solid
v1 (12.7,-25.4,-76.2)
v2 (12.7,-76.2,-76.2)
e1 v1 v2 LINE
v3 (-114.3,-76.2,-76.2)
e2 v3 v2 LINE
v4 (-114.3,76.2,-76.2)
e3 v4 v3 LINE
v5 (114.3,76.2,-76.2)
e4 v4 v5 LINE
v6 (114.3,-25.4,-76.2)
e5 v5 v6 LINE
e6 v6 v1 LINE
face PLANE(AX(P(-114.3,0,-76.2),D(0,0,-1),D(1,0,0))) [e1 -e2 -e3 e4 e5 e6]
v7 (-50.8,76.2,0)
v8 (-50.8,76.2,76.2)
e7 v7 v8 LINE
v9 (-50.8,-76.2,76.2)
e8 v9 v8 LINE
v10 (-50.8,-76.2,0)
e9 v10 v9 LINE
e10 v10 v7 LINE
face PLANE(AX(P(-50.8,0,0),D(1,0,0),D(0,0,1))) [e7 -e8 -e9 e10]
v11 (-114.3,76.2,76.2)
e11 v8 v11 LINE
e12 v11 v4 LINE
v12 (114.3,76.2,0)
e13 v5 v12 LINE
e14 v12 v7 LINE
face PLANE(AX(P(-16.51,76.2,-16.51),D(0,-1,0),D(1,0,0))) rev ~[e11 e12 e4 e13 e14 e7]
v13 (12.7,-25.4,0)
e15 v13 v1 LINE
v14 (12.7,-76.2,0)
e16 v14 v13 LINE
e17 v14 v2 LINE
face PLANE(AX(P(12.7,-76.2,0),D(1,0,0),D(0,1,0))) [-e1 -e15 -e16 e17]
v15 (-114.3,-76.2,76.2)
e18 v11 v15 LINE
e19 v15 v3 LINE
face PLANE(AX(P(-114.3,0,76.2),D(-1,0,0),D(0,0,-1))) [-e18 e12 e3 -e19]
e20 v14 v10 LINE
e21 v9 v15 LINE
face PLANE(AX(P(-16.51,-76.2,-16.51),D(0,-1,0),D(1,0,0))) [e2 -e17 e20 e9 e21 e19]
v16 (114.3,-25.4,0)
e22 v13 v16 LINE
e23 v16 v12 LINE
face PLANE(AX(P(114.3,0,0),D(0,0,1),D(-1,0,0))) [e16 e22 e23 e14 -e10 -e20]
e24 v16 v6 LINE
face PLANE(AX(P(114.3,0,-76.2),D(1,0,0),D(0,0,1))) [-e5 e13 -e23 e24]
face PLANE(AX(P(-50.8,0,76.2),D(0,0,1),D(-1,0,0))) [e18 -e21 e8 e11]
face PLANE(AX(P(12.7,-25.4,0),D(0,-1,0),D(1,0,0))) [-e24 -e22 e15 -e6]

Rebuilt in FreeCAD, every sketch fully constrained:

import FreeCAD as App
import Part
import Sketcher

V = App.Vector
Q = App.Units.Quantity

doc = App.newDocument("Part")
body = doc.addObject("PartDesign::Body", "Body")

# Sketch on XZ plane
sketch1 = body.newObject("Sketcher::SketchObject", "Sketch")
sketch1.AttachmentSupport = (doc.getObject("XZ_Plane"), [""])
sketch1.MapMode = "FlatFace"
sketch1.addGeometry([
    Part.LineSegment(V(-51, 76, 0), V(-114, 76, 0)),  # 0
    Part.LineSegment(V(-114, 76, 0), V(-114, -76, 0)),  # 1
    Part.LineSegment(V(-114, -76, 0), V(114, -76, 0)),  # 2
    Part.LineSegment(V(114, -76, 0), V(114, 0, 0)),  # 3
    Part.LineSegment(V(114, 0, 0), V(-51, 0, 0)),  # 4
    Part.LineSegment(V(-51, 0, 0), V(-51, 76, 0)),  # 5
], False)
sketch1.addConstraint([
    Sketcher.Constraint("Coincident", 0, 2, 1, 1),
    Sketcher.Constraint("Coincident", 1, 2, 2, 1),
    Sketcher.Constraint("Coincident", 2, 2, 3, 1),
    Sketcher.Constraint("Coincident", 3, 2, 4, 1),
    Sketcher.Constraint("Coincident", 4, 2, 5, 1),
    Sketcher.Constraint("Coincident", 5, 2, 0, 1),
    Sketcher.Constraint("Horizontal", 0),
    Sketcher.Constraint("Vertical", 1),
    Sketcher.Constraint("Horizontal", 2),
    Sketcher.Constraint("Vertical", 3),
    Sketcher.Constraint("Horizontal", 4),
    Sketcher.Constraint("Vertical", 5),
    Sketcher.Constraint("Symmetric", 0, 2, 2, 2, -1, 1),
    Sketcher.Constraint("PointOnObject", 3, 2, -1),
    Sketcher.Constraint("DistanceX", 2, 1, 2, 2, Q("9 in")),
    Sketcher.Constraint("DistanceY", 1, 2, 1, 1, Q("6 in")),
    Sketcher.Constraint("DistanceX", 0, 2, 0, 1, Q("2.5 in")),
])
pad1 = body.newObject("PartDesign::Pad", "Pad")
pad1.Profile = sketch1
pad1.Length = Q("6 in")
pad1.Midplane = True

# Sketch on XY plane
sketch2 = body.newObject("Sketcher::SketchObject", "Sketch001")
sketch2.AttachmentSupport = (doc.getObject("XY_Plane"), [""])
sketch2.MapMode = "FlatFace"
sketch2.addGeometry([
    Part.LineSegment(V(13, -25, 0), V(13, -76, 0)),
    Part.LineSegment(V(13, -76, 0), V(114, -76, 0)),
    Part.LineSegment(V(114, -76, 0), V(114, -25, 0)),
    Part.LineSegment(V(114, -25, 0), V(13, -25, 0)),
], False)
sketch2.addConstraint([
    Sketcher.Constraint("Coincident", 0, 2, 1, 1),
    Sketcher.Constraint("Coincident", 1, 2, 2, 1),
    Sketcher.Constraint("Coincident", 2, 2, 3, 1),
    Sketcher.Constraint("Coincident", 3, 2, 0, 1),
    Sketcher.Constraint("Vertical", 0),
    Sketcher.Constraint("Horizontal", 1),
    Sketcher.Constraint("Vertical", 2),
    Sketcher.Constraint("Horizontal", 3),
    Sketcher.Constraint("DistanceX", 1, 1, 1, 2, Q("4 in")),
    Sketcher.Constraint("DistanceY", 0, 2, 0, 1, Q("2 in")),
    Sketcher.Constraint("DistanceY", 0, 2, -1, 1, Q("3 in")),
    Sketcher.Constraint("DistanceX", -1, 1, 0, 2, Q("0.5 in")),
])
pocket1 = body.newObject("PartDesign::Pocket", "Pocket")
pocket1.Profile = sketch2
pocket1.Type = "ThroughAll"

doc.recompute()
